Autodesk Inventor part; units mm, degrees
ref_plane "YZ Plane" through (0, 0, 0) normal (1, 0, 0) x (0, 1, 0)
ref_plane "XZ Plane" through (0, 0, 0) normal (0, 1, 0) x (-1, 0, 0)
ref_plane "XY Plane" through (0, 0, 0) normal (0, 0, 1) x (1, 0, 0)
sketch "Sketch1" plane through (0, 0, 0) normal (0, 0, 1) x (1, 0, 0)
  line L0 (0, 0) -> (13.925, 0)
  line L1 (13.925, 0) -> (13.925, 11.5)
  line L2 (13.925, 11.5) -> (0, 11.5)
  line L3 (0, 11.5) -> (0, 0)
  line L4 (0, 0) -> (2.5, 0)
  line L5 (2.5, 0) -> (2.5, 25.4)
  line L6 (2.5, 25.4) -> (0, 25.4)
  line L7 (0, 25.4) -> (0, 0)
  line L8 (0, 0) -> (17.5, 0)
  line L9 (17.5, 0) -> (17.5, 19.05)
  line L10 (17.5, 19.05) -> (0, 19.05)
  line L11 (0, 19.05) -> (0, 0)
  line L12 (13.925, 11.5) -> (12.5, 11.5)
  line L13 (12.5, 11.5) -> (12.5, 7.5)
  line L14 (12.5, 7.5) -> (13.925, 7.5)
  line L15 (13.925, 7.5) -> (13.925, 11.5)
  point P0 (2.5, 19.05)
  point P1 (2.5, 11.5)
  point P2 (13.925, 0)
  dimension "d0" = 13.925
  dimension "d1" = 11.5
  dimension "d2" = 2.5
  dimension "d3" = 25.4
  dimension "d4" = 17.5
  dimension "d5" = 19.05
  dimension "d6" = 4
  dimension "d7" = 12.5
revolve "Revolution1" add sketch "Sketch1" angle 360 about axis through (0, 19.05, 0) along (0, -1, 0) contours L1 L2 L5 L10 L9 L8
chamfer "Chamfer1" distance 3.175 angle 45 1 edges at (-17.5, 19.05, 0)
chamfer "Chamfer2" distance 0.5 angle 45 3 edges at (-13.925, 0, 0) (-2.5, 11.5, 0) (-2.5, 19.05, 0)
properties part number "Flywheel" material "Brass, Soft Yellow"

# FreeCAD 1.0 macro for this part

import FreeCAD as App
import Part
import Sketcher


def edges_at(feature, points):
    """Names of the edges that pass closest to the given points."""
    edges = feature.Shape.Edges
    near = lambda p: min(range(len(edges)), key=lambda i: edges[i].distToShape(Part.Vertex(*p))[0])
    return sorted({f"Edge{near(p) + 1}" for p in points})

doc = App.newDocument("Part")
body = doc.addObject("PartDesign::Body", "Body")

sketch1 = body.newObject("Sketcher::SketchObject", "Sketch")
sketch1.AttachmentSupport = (doc.getObject("XY_Plane"), [""])
sketch1.MapMode = "FlatFace"
sketch1.addGeometry(Part.LineSegment(App.Vector(13.9, 11.5, 0), App.Vector(13.9, 0, 0)), False)
sketch1.addGeometry(Part.LineSegment(App.Vector(13.9, 0, 0), App.Vector(17.5, 0, 0)), False)
sketch1.addGeometry(Part.LineSegment(App.Vector(17.5, 0, 0), App.Vector(17.5, 19.1, 0)), False)
sketch1.addGeometry(Part.LineSegment(App.Vector(17.5, 19.1, 0), App.Vector(2.5, 19.1, 0)), False)
sketch1.addGeometry(Part.LineSegment(App.Vector(2.5, 19.1, 0), App.Vector(2.5, 11.5, 0)), False)
sketch1.addGeometry(Part.LineSegment(App.Vector(2.5, 11.5, 0), App.Vector(13.9, 11.5, 0)), False)
sketch1.addConstraint(Sketcher.Constraint("Coincident", 0, 2, 1, 1))
sketch1.addConstraint(Sketcher.Constraint("Coincident", 1, 2, 2, 1))
sketch1.addConstraint(Sketcher.Constraint("Coincident", 2, 2, 3, 1))
sketch1.addConstraint(Sketcher.Constraint("Coincident", 3, 2, 4, 1))
sketch1.addConstraint(Sketcher.Constraint("Coincident", 4, 2, 5, 1))
sketch1.addConstraint(Sketcher.Constraint("Coincident", 5, 2, 0, 1))
sketch1.addConstraint(Sketcher.Constraint("Vertical", 0))
sketch1.addConstraint(Sketcher.Constraint("Horizontal", 1))
sketch1.addConstraint(Sketcher.Constraint("Vertical", 2))
sketch1.addConstraint(Sketcher.Constraint("Horizontal", 3))
sketch1.addConstraint(Sketcher.Constraint("Vertical", 4))
sketch1.addConstraint(Sketcher.Constraint("Horizontal", 5))
sketch1.addConstraint(Sketcher.Constraint("PointOnObject", 0, 2, -1))
sketch1.addConstraint(Sketcher.Constraint("DistanceY", 0, 2, 0, 1, 11.5))
sketch1.addConstraint(Sketcher.Constraint("DistanceY", 2, 1, 2, 2, 19.05))
sketch1.addConstraint(Sketcher.Constraint("DistanceX", -1, 1, 1, 2, 17.5))
sketch1.addConstraint(Sketcher.Constraint("DistanceX", -1, 1, 3, 2, 2.5))
sketch1.addConstraint(Sketcher.Constraint("DistanceX", -1, 1, 0, 2, 13.925))
revolution = body.newObject("PartDesign::Revolution", "Revolution")
revolution.Profile = sketch1
revolution.ReferenceAxis = (sketch1, ["V_Axis"])
revolution.Angle = 360
doc.recompute()

chamfer = body.newObject("PartDesign::Chamfer", "Chamfer")
chamfer.Base = (revolution, edges_at(revolution, [(-17.5, 19.05, 0)]))
chamfer.Size = 3.175
doc.recompute()

chamfer2 = body.newObject("PartDesign::Chamfer", "Chamfer001")
chamfer2.Base = (chamfer, edges_at(chamfer, [(-13.925, 0, 0), (-2.5, 11.5, 0), (-2.5, 19.05, 0)]))
chamfer2.Size = 0.5

doc.recompute()
